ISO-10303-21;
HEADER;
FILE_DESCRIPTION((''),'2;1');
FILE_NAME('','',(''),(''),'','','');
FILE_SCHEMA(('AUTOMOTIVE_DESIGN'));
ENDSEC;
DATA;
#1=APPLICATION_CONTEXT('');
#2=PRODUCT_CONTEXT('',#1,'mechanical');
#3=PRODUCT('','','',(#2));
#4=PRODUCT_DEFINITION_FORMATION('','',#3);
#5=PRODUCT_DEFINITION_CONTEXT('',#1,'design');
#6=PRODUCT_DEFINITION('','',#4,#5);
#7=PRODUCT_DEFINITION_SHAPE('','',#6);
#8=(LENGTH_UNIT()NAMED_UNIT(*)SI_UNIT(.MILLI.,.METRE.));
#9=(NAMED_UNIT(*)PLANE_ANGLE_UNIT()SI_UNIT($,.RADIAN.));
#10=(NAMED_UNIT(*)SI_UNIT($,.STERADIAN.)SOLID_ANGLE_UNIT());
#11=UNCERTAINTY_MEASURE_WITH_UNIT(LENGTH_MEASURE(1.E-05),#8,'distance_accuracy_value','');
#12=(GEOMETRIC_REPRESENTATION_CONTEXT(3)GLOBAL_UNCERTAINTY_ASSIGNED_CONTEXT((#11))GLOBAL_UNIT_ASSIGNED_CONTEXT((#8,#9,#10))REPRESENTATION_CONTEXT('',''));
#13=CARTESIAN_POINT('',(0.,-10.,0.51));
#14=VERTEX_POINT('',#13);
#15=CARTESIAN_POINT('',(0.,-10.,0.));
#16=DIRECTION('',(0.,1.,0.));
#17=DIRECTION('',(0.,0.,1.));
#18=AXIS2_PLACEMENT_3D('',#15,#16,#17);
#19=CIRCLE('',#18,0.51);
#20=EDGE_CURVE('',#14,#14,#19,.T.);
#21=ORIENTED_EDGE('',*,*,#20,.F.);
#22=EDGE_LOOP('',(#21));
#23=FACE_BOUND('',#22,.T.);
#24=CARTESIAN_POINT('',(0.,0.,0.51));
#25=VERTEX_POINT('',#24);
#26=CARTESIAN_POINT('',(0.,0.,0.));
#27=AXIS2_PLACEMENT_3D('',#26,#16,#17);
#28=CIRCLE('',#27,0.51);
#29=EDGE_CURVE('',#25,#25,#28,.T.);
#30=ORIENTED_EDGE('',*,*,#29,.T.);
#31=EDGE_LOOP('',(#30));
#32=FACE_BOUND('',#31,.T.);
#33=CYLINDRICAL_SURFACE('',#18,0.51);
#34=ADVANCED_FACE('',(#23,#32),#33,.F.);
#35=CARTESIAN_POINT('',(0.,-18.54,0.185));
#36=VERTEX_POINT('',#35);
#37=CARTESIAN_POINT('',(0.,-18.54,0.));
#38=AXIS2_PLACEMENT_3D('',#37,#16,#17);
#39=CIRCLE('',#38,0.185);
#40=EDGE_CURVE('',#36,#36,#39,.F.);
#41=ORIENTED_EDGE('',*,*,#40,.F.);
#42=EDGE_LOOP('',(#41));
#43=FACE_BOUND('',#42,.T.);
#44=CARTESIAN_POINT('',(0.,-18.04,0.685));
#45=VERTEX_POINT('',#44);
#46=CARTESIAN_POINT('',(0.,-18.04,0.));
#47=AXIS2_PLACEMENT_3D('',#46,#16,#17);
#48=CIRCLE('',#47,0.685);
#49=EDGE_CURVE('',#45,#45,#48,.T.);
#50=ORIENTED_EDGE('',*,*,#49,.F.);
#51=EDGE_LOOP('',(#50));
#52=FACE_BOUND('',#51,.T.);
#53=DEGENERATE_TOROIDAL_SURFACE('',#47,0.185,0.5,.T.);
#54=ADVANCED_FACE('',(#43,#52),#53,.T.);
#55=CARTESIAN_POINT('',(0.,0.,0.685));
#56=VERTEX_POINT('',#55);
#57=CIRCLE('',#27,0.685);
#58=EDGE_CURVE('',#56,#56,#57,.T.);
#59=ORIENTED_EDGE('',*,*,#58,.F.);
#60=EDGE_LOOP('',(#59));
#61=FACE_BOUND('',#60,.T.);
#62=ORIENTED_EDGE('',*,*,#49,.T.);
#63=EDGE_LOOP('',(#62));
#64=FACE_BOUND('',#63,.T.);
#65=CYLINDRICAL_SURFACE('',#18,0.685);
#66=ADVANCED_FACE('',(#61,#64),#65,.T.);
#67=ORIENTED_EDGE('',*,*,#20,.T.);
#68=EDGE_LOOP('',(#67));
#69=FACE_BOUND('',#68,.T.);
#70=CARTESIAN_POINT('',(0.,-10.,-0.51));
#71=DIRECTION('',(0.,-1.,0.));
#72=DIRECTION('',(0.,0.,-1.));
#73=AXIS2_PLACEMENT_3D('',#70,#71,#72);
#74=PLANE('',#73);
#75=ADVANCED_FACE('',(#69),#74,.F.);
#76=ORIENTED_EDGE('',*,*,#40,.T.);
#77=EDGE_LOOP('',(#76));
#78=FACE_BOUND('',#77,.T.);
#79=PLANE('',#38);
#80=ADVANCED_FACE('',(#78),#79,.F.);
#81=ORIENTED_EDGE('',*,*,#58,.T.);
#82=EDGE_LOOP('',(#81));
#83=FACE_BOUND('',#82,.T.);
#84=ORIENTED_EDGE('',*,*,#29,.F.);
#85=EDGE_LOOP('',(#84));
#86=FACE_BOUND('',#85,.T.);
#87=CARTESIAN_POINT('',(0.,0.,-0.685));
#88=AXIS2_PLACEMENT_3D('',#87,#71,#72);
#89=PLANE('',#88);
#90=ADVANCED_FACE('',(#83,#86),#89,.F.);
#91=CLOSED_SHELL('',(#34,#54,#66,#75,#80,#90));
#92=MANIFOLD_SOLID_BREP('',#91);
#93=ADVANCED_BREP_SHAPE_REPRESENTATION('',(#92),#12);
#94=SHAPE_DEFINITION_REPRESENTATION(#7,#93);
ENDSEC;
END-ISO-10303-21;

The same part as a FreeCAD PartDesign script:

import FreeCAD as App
import Part
import Sketcher


def edges_at(feature, points):
    """Names of the edges that pass closest to the given points."""
    edges = feature.Shape.Edges
    near = lambda p: min(range(len(edges)), key=lambda i: edges[i].distToShape(Part.Vertex(*p))[0])
    return sorted({f"Edge{near(p) + 1}" for p in points})

doc = App.newDocument("Part")
body = doc.addObject("PartDesign::Body", "Body")

# Sketch on YZ plane
sketch1 = body.newObject("Sketcher::SketchObject", "Sketch")
sketch1.AttachmentSupport = (doc.getObject("YZ_Plane"), [""])
sketch1.MapMode = "FlatFace"
sketch1.addGeometry([
    Part.LineSegment(App.Vector(0, -0.51, 0), App.Vector(-10, -0.51, 0)),  # 0
    Part.LineSegment(App.Vector(-10, -0.51, 0), App.Vector(-10, 0, 0)),  # 1
    Part.LineSegment(App.Vector(-10, 0, 0), App.Vector(-18.54, 0, 0)),  # 2
    Part.LineSegment(App.Vector(-18.54, 0, 0), App.Vector(-18.54, -0.685, 0)),  # 3
    Part.LineSegment(App.Vector(-18.54, -0.685, 0), App.Vector(0, -0.685, 0)),  # 4
    Part.LineSegment(App.Vector(0, -0.685, 0), App.Vector(0, -0.51, 0)),  # 5
], False)
sketch1.addConstraint([
    Sketcher.Constraint("Coincident", 0, 2, 1, 1),
    Sketcher.Constraint("Coincident", 1, 2, 2, 1),
    Sketcher.Constraint("Coincident", 2, 2, 3, 1),
    Sketcher.Constraint("Coincident", 3, 2, 4, 1),
    Sketcher.Constraint("Coincident", 4, 2, 5, 1),
    Sketcher.Constraint("Coincident", 5, 2, 0, 1),
    Sketcher.Constraint("Horizontal", 0),
    Sketcher.Constraint("Vertical", 1),
    Sketcher.Constraint("Horizontal", 2),
    Sketcher.Constraint("Vertical", 3),
    Sketcher.Constraint("Horizontal", 4),
    Sketcher.Constraint("Vertical", 5),
    Sketcher.Constraint("PointOnObject", 1, 2, -1),
    Sketcher.Constraint("PointOnObject", 4, 2, -2),
    Sketcher.Constraint("DistanceX", 0, 2, 0, 1, 10.0),
    Sketcher.Constraint("DistanceX", 2, 2, 2, 1, 8.54),
    Sketcher.Constraint("DistanceY", 1, 1, 1, 2, 0.51),
    Sketcher.Constraint("DistanceY", 3, 2, 3, 1, 0.685),
])
revolution = body.newObject("PartDesign::Revolution", "Revolution")
revolution.Profile = sketch1
revolution.ReferenceAxis = (sketch1, ["H_Axis"])
revolution.Angle = 360
doc.recompute()

fillet = body.newObject("PartDesign::Fillet", "Fillet")
fillet.Base = (revolution, edges_at(revolution, [(0, -18.54, -0.685)]))
fillet.Radius = 0.5

doc.recompute()
